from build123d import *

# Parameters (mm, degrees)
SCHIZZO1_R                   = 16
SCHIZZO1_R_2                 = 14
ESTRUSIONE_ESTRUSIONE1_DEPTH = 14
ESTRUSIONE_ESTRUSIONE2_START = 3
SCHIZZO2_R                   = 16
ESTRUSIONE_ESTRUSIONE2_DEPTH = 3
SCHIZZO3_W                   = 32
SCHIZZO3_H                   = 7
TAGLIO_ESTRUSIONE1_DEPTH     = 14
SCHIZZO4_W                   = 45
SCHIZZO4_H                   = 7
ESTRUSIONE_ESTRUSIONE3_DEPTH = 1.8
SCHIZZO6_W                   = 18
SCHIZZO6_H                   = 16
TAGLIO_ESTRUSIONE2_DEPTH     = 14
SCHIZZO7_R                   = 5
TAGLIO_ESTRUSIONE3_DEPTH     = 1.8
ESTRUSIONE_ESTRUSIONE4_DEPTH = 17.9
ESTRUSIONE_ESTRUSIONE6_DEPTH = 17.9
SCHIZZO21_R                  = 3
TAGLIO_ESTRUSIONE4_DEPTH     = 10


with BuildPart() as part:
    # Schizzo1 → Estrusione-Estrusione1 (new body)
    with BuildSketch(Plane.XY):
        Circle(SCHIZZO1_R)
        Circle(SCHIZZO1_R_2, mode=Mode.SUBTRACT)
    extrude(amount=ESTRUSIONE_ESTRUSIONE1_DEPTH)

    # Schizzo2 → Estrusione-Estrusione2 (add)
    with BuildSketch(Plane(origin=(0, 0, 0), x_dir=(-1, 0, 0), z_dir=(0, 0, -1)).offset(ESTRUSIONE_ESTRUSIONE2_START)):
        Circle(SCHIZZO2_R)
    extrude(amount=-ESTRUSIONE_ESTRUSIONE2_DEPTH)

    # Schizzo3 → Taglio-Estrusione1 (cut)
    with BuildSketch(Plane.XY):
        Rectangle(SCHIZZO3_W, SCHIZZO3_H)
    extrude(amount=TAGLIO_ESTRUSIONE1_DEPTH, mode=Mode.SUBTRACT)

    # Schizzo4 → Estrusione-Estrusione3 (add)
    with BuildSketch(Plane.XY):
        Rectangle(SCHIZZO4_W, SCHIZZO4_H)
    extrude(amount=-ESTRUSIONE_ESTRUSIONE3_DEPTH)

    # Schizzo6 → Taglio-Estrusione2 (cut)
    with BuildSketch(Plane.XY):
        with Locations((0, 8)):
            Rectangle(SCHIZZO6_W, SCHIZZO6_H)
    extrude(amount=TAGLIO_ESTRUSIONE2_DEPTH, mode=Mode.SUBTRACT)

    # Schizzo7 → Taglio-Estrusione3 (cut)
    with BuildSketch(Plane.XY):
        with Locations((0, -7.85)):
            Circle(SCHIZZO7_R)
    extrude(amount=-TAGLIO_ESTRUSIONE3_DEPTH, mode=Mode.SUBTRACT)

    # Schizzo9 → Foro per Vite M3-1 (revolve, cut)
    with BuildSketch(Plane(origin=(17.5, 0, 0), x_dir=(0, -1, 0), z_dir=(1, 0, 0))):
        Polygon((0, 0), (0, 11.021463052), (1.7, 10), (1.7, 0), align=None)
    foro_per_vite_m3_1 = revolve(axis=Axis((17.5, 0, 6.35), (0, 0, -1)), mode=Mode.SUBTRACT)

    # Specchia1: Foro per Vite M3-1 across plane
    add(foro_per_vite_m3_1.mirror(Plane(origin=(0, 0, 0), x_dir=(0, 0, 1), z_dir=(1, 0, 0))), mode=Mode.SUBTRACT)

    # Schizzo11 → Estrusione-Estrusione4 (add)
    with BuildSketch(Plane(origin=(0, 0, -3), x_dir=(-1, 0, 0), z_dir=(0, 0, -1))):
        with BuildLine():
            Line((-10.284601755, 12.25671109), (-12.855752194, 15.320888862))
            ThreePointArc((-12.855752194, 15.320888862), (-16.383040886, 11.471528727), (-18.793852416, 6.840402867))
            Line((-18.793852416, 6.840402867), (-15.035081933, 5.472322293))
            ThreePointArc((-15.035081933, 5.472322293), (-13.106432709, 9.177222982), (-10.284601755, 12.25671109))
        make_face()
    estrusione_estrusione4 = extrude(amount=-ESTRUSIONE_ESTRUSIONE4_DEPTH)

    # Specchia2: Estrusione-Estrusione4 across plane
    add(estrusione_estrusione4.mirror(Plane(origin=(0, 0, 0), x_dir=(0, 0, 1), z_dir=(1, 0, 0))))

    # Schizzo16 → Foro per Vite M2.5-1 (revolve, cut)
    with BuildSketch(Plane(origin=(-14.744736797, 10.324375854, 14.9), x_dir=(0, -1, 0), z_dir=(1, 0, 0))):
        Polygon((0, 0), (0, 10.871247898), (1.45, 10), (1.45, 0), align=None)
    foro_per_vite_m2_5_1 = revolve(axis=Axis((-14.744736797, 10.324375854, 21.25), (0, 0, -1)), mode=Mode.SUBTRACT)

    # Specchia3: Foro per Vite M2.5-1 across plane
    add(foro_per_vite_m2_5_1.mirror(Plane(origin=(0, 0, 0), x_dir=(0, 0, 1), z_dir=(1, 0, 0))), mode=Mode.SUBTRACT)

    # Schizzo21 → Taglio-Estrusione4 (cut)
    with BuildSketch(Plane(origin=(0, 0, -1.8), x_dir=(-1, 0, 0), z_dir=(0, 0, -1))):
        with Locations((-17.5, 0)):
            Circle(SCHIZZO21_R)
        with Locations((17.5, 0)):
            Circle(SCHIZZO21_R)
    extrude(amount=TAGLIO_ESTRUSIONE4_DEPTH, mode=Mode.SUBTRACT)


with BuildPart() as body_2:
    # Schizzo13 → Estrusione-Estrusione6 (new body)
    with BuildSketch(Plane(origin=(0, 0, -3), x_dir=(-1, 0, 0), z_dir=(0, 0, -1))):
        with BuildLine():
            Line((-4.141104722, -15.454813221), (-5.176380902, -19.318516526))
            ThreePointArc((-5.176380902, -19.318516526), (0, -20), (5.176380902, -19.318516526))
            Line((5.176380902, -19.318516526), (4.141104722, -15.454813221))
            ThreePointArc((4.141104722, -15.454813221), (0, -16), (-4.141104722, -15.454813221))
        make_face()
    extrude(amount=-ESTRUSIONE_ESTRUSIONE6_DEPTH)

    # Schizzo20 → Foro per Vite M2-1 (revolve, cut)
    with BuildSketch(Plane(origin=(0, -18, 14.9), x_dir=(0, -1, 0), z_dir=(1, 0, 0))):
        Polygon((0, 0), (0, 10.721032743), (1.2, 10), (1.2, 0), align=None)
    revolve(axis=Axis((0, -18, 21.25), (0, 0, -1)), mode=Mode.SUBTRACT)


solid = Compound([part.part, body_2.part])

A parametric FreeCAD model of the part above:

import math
import FreeCAD as App
import Part
import Sketcher

V = App.Vector
Q = App.Units.Quantity

doc = App.newDocument("Part")
params = doc.addObject("Spreadsheet::Sheet", "Params")
for row, (alias, value) in enumerate([
    ("sketch1_diameter", "32 mm"),
    ("sketch1_diameter2", "28 mm"),
    ("pad1_length", "14 mm"),
    ("sketch2_diameter", "32 mm"),
    ("pad2_length", "3 mm"),
    ("sketch3_width", "32 mm"),
    ("sketch3_height", "7 mm"),
    ("pocket1_length", "14 mm"),
    ("sketch4_width", "45 mm"),
    ("sketch4_height", "7 mm"),
    ("pad3_length", "1.8 mm"),
    ("sketch5_width", "18 mm"),
    ("sketch5_height", "16 mm"),
    ("pocket2_length", "14 mm"),
    ("sketch6_diameter", "10 mm"),
    ("pocket3_length", "1.8 mm"),
    ("sketch7_height", "10 mm"),
    ("sketch7_width", "1.7 mm"),
    ("groove_angle", "360 deg"),
    ("sketch8_radius", "20 mm"),
    ("sketch8_radius2", "16 mm"),
    ("pad4_length", "17.9 mm"),
    ("sketch9_height", "10 mm"),
    ("sketch9_width", "1.45 mm"),
    ("groove2_angle", "360 deg"),
    ("sketch10_diameter", "6 mm"),
    ("pocket4_length", "10 mm"),
    ("sketch11_radius", "20 mm"),
    ("sketch11_radius2", "16 mm"),
    ("pad5_length", "17.9 mm"),
    ("sketch12_height", "10 mm"),
    ("sketch12_width", "1.2 mm"),
    ("groove3_angle", "360 deg"),
], start=1):
    params.set(f"A{row}", alias)
    params.set(f"B{row}", "=" + value)
    params.setAlias(f"B{row}", alias)

body = doc.addObject("PartDesign::Body", "Body")

sketch1 = body.newObject("Sketcher::SketchObject", "Sketch")
sketch1.AttachmentSupport = (doc.getObject("XY_Plane"), [""])
sketch1.MapMode = "FlatFace"
sketch1.addGeometry([
    Part.Circle(V(0, 0, 0), V(0, 0, 1), 16),
    Part.Circle(V(0, 0, 0), V(0, 0, 1), 14),
], False)
sketch1.addConstraint([
    Sketcher.Constraint("Coincident", 0, 3, -1, 1),
    Sketcher.Constraint("Coincident", 1, 3, -1, 1),
    Sketcher.Constraint("Diameter", 0, Q("32 mm")),
    Sketcher.Constraint("Diameter", 1, Q("28 mm")),
])
sketch1.setExpression("Constraints[2]", "Params.sketch1_diameter")
sketch1.setExpression("Constraints[3]", "Params.sketch1_diameter2")
pad1 = body.newObject("PartDesign::Pad", "Pad")
pad1.Profile = sketch1
pad1.setExpression("Length", "Params.pad1_length")

sketch2 = body.newObject("Sketcher::SketchObject", "Sketch001")
sketch2.AttachmentSupport = (doc.getObject("XY_Plane"), [""])
sketch2.MapMode = "FlatFace"
sketch2.AttachmentOffset = App.Placement(V(0, 0, -3), App.Rotation())
sketch2.addGeometry(Part.Circle(V(0, 0, 0), V(0, 0, 1), 16), False)
sketch2.addConstraint([
    Sketcher.Constraint("Coincident", 0, 3, -1, 1),
    Sketcher.Constraint("Diameter", 0, Q("32 mm")),
])
sketch2.setExpression("Constraints[1]", "Params.sketch2_diameter")
pad2 = body.newObject("PartDesign::Pad", "Pad001")
pad2.Profile = sketch2
pad2.setExpression("Length", "Params.pad2_length")

sketch3 = body.newObject("Sketcher::SketchObject", "Sketch002")
sketch3.AttachmentSupport = (doc.getObject("XY_Plane"), [""])
sketch3.MapMode = "FlatFace"
sketch3.addGeometry([
    Part.LineSegment(V(-16, 4, 0), V(-16, -4, 0)),
    Part.LineSegment(V(-16, -4, 0), V(16, -4, 0)),
    Part.LineSegment(V(16, -4, 0), V(16, 4, 0)),
    Part.LineSegment(V(16, 4, 0), V(-16, 4, 0)),
], False)
sketch3.addConstraint([
    Sketcher.Constraint("Coincident", 0, 2, 1, 1),
    Sketcher.Constraint("Coincident", 1, 2, 2, 1),
    Sketcher.Constraint("Coincident", 2, 2, 3, 1),
    Sketcher.Constraint("Coincident", 3, 2, 0, 1),
    Sketcher.Constraint("Vertical", 0),
    Sketcher.Constraint("Horizontal", 1),
    Sketcher.Constraint("Vertical", 2),
    Sketcher.Constraint("Horizontal", 3),
    Sketcher.Constraint("Symmetric", 0, 2, 2, 2, -1, 1),
    Sketcher.Constraint("DistanceX", 1, 1, 1, 2, Q("32 mm")),
    Sketcher.Constraint("DistanceY", 0, 2, 0, 1, Q("7 mm")),
])
sketch3.setExpression("Constraints[9]", "Params.sketch3_width")
sketch3.setExpression("Constraints[10]", "Params.sketch3_height")
pocket1 = body.newObject("PartDesign::Pocket", "Pocket")
pocket1.Profile = sketch3
pocket1.setExpression("Length", "Params.pocket1_length")
pocket1.Reversed = True

sketch4 = body.newObject("Sketcher::SketchObject", "Sketch003")
sketch4.AttachmentSupport = (doc.getObject("XY_Plane"), [""])
sketch4.MapMode = "FlatFace"
sketch4.addGeometry([
    Part.LineSegment(V(-22, 4, 0), V(-22, -4, 0)),
    Part.LineSegment(V(-22, -4, 0), V(22, -4, 0)),
    Part.LineSegment(V(22, -4, 0), V(22, 4, 0)),
    Part.LineSegment(V(22, 4, 0), V(-22, 4, 0)),
], False)
sketch4.addConstraint([
    Sketcher.Constraint("Coincident", 0, 2, 1, 1),
    Sketcher.Constraint("Coincident", 1, 2, 2, 1),
    Sketcher.Constraint("Coincident", 2, 2, 3, 1),
    Sketcher.Constraint("Coincident", 3, 2, 0, 1),
    Sketcher.Constraint("Vertical", 0),
    Sketcher.Constraint("Horizontal", 1),
    Sketcher.Constraint("Vertical", 2),
    Sketcher.Constraint("Horizontal", 3),
    Sketcher.Constraint("Symmetric", 0, 2, 2, 2, -1, 1),
    Sketcher.Constraint("DistanceX", 1, 1, 1, 2, Q("45 mm")),
    Sketcher.Constraint("DistanceY", 0, 2, 0, 1, Q("7 mm")),
])
sketch4.setExpression("Constraints[9]", "Params.sketch4_width")
sketch4.setExpression("Constraints[10]", "Params.sketch4_height")
pad3 = body.newObject("PartDesign::Pad", "Pad002")
pad3.Profile = sketch4
pad3.setExpression("Length", "Params.pad3_length")
pad3.Reversed = True

sketch5 = body.newObject("Sketcher::SketchObject", "Sketch004")
sketch5.AttachmentSupport = (doc.getObject("XY_Plane"), [""])
sketch5.MapMode = "FlatFace"
sketch5.addGeometry([
    Part.LineSegment(V(-9, 16, 0), V(-9, 0, 0)),
    Part.LineSegment(V(-9, 0, 0), V(9, 0, 0)),
    Part.LineSegment(V(9, 0, 0), V(9, 16, 0)),
    Part.LineSegment(V(9, 16, 0), V(-9, 16, 0)),
], False)
sketch5.addConstraint([
    Sketcher.Constraint("Coincident", 0, 2, 1, 1),
    Sketcher.Constraint("Coincident", 1, 2, 2, 1),
    Sketcher.Constraint("Coincident", 2, 2, 3, 1),
    Sketcher.Constraint("Coincident", 3, 2, 0, 1),
    Sketcher.Constraint("Vertical", 0),
    Sketcher.Constraint("Horizontal", 1),
    Sketcher.Constraint("Vertical", 2),
    Sketcher.Constraint("Horizontal", 3),
    Sketcher.Constraint("Symmetric", 0, 2, 1, 2, -1, 1),
    Sketcher.Constraint("DistanceX", 1, 1, 1, 2, Q("18 mm")),
    Sketcher.Constraint("DistanceY", 0, 2, 0, 1, Q("16 mm")),
])
sketch5.setExpression("Constraints[9]", "Params.sketch5_width")
sketch5.setExpression("Constraints[10]", "Params.sketch5_height")
pocket2 = body.newObject("PartDesign::Pocket", "Pocket001")
pocket2.Profile = sketch5
pocket2.setExpression("Length", "Params.pocket2_length")
pocket2.Reversed = True

sketch6 = body.newObject("Sketcher::SketchObject", "Sketch005")
sketch6.AttachmentSupport = (doc.getObject("XY_Plane"), [""])
sketch6.MapMode = "FlatFace"
sketch6.addGeometry(Part.Circle(V(0, -8, 0), V(0, 0, 1), 5), False)
sketch6.addConstraint([
    Sketcher.Constraint("PointOnObject", 0, 3, -2),
    Sketcher.Constraint("Diameter", 0, Q("10 mm")),
    Sketcher.Constraint("DistanceY", 0, 3, -1, 1, Q("7.85 mm")),
])
sketch6.setExpression("Constraints[1]", "Params.sketch6_diameter")
pocket3 = body.newObject("PartDesign::Pocket", "Pocket002")
pocket3.Profile = sketch6
pocket3.setExpression("Length", "Params.pocket3_length")

sketch7 = body.newObject("Sketcher::SketchObject", "Sketch006")
sketch7.AttachmentSupport = (doc.getObject("YZ_Plane"), [""])
sketch7.MapMode = "FlatFace"
sketch7.AttachmentOffset = App.Placement(V(0, 0, 17.5), App.Rotation())
sketch7.addGeometry([
    Part.LineSegment(V(0, -11, 0), V(0, 0, 0)),
    Part.LineSegment(V(0, 0, 0), V(-1.7, 0, 0)),
    Part.LineSegment(V(-1.7, 0, 0), V(-1.7, -10, 0)),
    Part.LineSegment(V(-1.7, -10, 0), V(0, -11, 0)),
], False)
sketch7.addConstraint([
    Sketcher.Constraint("Coincident", 0, 2, 1, 1),
    Sketcher.Constraint("Coincident", 1, 2, 2, 1),
    Sketcher.Constraint("Coincident", 2, 2, 3, 1),
    Sketcher.Constraint("Coincident", 3, 2, 0, 1),
    Sketcher.Constraint("Vertical", 0),
    Sketcher.Constraint("Horizontal", 1),
    Sketcher.Constraint("Vertical", 2),
    Sketcher.Constraint("Coincident", 0, 2, -1, 1),
    Sketcher.Constraint("DistanceY", 2, 2, 2, 1, Q("10 mm")),
    Sketcher.Constraint("Angle", 3, Q("-31 deg")),
    Sketcher.Constraint("DistanceX", 1, 2, 1, 1, Q("1.7 mm")),
])
sketch7.setExpression("Constraints[8]", "Params.sketch7_height")
sketch7.setExpression("Constraints[10]", "Params.sketch7_width")
groove = body.newObject("PartDesign::Groove", "Groove")
groove.Profile = sketch7
groove.ReferenceAxis = (sketch7, ["V_Axis"])
groove.setExpression("Angle", "Params.groove_angle")
doc.recompute()

mirrored = body.newObject("PartDesign::Mirrored", "Mirrored")
mirrored.Originals = [groove]
mirrored.MirrorPlane = (doc.getObject("YZ_Plane"), [""])
body.Tip = mirrored

sketch8 = body.newObject("Sketcher::SketchObject", "Sketch007")
sketch8.AttachmentSupport = (doc.getObject("XY_Plane"), [""])
sketch8.MapMode = "FlatFace"
sketch8.AttachmentOffset = App.Placement(V(0, 0, -3), App.Rotation())
sketch8.addGeometry([
    Part.LineSegment(V(10.3, 12.3, 0), V(12.9, 15.3, 0)),
    Part.ArcOfCircle(Part.Circle(V(0, 0, 0), V(0, 0, 1), 20), math.radians(20), math.radians(50)),
    Part.LineSegment(V(18.8, 6.8, 0), V(15, 5.5, 0)),
    Part.ArcOfCircle(Part.Circle(V(0, 0, 0), V(0, 0, 1), 16), math.radians(20), math.radians(50)),
], False)
sketch8.addConstraint([
    Sketcher.Constraint("Coincident", 0, 2, 1, 2),
    Sketcher.Constraint("Coincident", 1, 1, 2, 1),
    Sketcher.Constraint("Coincident", 2, 2, 3, 1),
    Sketcher.Constraint("Coincident", 3, 2, 0, 1),
    Sketcher.Constraint("Coincident", 1, 3, -1, 1),
    Sketcher.Constraint("Coincident", 3, 3, -1, 1),
    Sketcher.Constraint("Radius", 1, Q("20 mm")),
    Sketcher.Constraint("Radius", 3, Q("16 mm")),
    Sketcher.Constraint("Angle", 0, Q("50 deg")),
    Sketcher.Constraint("Angle", 2, Q("-160 deg")),
    Sketcher.Constraint("DistanceX", -1, 1, 3, 2, Q("10.284602 mm")),
    Sketcher.Constraint("DistanceX", 0, 2, 1, 1, Q("5.9381 mm")),
])
sketch8.setExpression("Constraints[6]", "Params.sketch8_radius")
sketch8.setExpression("Constraints[7]", "Params.sketch8_radius2")
pad4 = body.newObject("PartDesign::Pad", "Pad003")
pad4.Profile = sketch8
pad4.setExpression("Length", "Params.pad4_length")
doc.recompute()

mirrored2 = body.newObject("PartDesign::Mirrored", "Mirrored001")
mirrored2.Originals = [pad4]
mirrored2.MirrorPlane = (doc.getObject("YZ_Plane"), [""])
body.Tip = mirrored2

sketch9 = body.newObject("Sketcher::SketchObject", "Sketch008")
sketch9.AttachmentSupport = (doc.getObject("YZ_Plane"), [""])
sketch9.MapMode = "FlatFace"
sketch9.AttachmentOffset = App.Placement(V(0, 0, -14.744737), App.Rotation())
sketch9.addGeometry([
    Part.LineSegment(V(10.3, 4, 0), V(10.3, 14.9, 0)),
    Part.LineSegment(V(10.3, 14.9, 0), V(8.9, 14.9, 0)),
    Part.LineSegment(V(8.9, 14.9, 0), V(8.9, 4.9, 0)),
    Part.LineSegment(V(8.9, 4.9, 0), V(10.3, 4, 0)),
], False)
sketch9.addGeometry(Part.LineSegment(V(10.3, 14.9, 0), V(10.3, 4, 0)), True)
sketch9.addConstraint([
    Sketcher.Constraint("Coincident", 0, 2, 1, 1),
    Sketcher.Constraint("Coincident", 1, 2, 2, 1),
    Sketcher.Constraint("Coincident", 2, 2, 3, 1),
    Sketcher.Constraint("Coincident", 3, 2, 0, 1),
    Sketcher.Constraint("Vertical", 0),
    Sketcher.Constraint("Horizontal", 1),
    Sketcher.Constraint("Vertical", 2),
    Sketcher.Constraint("Vertical", 4),
    Sketcher.Constraint("Coincident", 4, 1, 0, 2),
    Sketcher.Constraint("Equal", 0, 4),
    Sketcher.Constraint("DistanceY", 2, 2, 2, 1, Q("10 mm")),
    Sketcher.Constraint("Angle", 3, Q("-31 deg")),
    Sketcher.Constraint("DistanceX", 1, 2, 1, 1, Q("1.45 mm")),
    Sketcher.Constraint("DistanceY", -1, 1, 0, 2, Q("14.9 mm")),
    Sketcher.Constraint("DistanceX", -1, 1, 0, 2, Q("10.324376 mm")),
])
sketch9.setExpression("Constraints[10]", "Params.sketch9_height")
sketch9.setExpression("Constraints[12]", "Params.sketch9_width")
groove2 = body.newObject("PartDesign::Groove", "Groove001")
groove2.Profile = sketch9
groove2.ReferenceAxis = (sketch9, ["Axis0"])
groove2.setExpression("Angle", "Params.groove2_angle")
doc.recompute()

mirrored3 = body.newObject("PartDesign::Mirrored", "Mirrored002")
mirrored3.Originals = [groove2]
mirrored3.MirrorPlane = (doc.getObject("YZ_Plane"), [""])
body.Tip = mirrored3

sketch10 = body.newObject("Sketcher::SketchObject", "Sketch009")
sketch10.AttachmentSupport = (doc.getObject("XY_Plane"), [""])
sketch10.MapMode = "FlatFace"
sketch10.AttachmentOffset = App.Placement(V(0, 0, -1.8), App.Rotation())
sketch10.addGeometry([
    Part.Circle(V(17.5, 0, 0), V(0, 0, 1), 3),
    Part.Circle(V(-17.5, 0, 0), V(0, 0, 1), 3),
], False)
sketch10.addConstraint([
    Sketcher.Constraint("Equal", 0, 1),
    Sketcher.Constraint("Symmetric", 0, 3, 1, 3, -1, 1),
    Sketcher.Constraint("PointOnObject", 0, 3, -1),
    Sketcher.Constraint("Diameter", 0, Q("6 mm")),
    Sketcher.Constraint("DistanceX", 1, 3, 0, 3, Q("35 mm")),
])
sketch10.setExpression("Constraints[3]", "Params.sketch10_diameter")
pocket4 = body.newObject("PartDesign::Pocket", "Pocket003")
pocket4.Profile = sketch10
pocket4.setExpression("Length", "Params.pocket4_length")
body2 = doc.addObject("PartDesign::Body", "Body001")

sketch11 = body2.newObject("Sketcher::SketchObject", "Sketch010")
sketch11.AttachmentSupport = (doc.getObject("XY_Plane001"), [""])
sketch11.MapMode = "FlatFace"
sketch11.AttachmentOffset = App.Placement(V(0, 0, -3), App.Rotation())
sketch11.addGeometry([
    Part.LineSegment(V(4.1, -15.5, 0), V(5.2, -19.3, 0)),
    Part.ArcOfCircle(Part.Circle(V(0, 0, 0), V(0, 0, 1), 20), math.radians(-105), math.radians(-75)),
    Part.LineSegment(V(-5.2, -19.3, 0), V(-4.1, -15.5, 0)),
    Part.ArcOfCircle(Part.Circle(V(0, 0, 0), V(0, 0, 1), 16), math.radians(-105), math.radians(-75)),
], False)
sketch11.addConstraint([
    Sketcher.Constraint("Coincident", 0, 2, 1, 2),
    Sketcher.Constraint("Coincident", 1, 1, 2, 1),
    Sketcher.Constraint("Coincident", 2, 2, 3, 1),
    Sketcher.Constraint("Coincident", 3, 2, 0, 1),
    Sketcher.Constraint("Coincident", 1, 3, -1, 1),
    Sketcher.Constraint("Coincident", 3, 3, -1, 1),
    Sketcher.Constraint("Horizontal", 0, 2, 1, 1),
    Sketcher.Constraint("Horizontal", 2, 2, 3, 2),
    Sketcher.Constraint("Radius", 1, Q("20 mm")),
    Sketcher.Constraint("Radius", 3, Q("16 mm")),
    Sketcher.Constraint("Angle", 0, Q("-75 deg")),
    Sketcher.Constraint("DistanceX", -1, 1, 0, 2, Q("5.176381 mm")),
])
sketch11.setExpression("Constraints[8]", "Params.sketch11_radius")
sketch11.setExpression("Constraints[9]", "Params.sketch11_radius2")
pad5 = body2.newObject("PartDesign::Pad", "Pad004")
pad5.Profile = sketch11
pad5.setExpression("Length", "Params.pad5_length")

sketch12 = body2.newObject("Sketcher::SketchObject", "Sketch011")
sketch12.AttachmentSupport = (doc.getObject("YZ_Plane001"), [""])
sketch12.MapMode = "FlatFace"
sketch12.addGeometry([
    Part.LineSegment(V(-18, 4.2, 0), V(-18, 14.9, 0)),
    Part.LineSegment(V(-18, 14.9, 0), V(-19.2, 14.9, 0)),
    Part.LineSegment(V(-19.2, 14.9, 0), V(-19.2, 4.9, 0)),
    Part.LineSegment(V(-19.2, 4.9, 0), V(-18, 4.2, 0)),
], False)
sketch12.addGeometry(Part.LineSegment(V(-18, 14.9, 0), V(-18, 4.2, 0)), True)
sketch12.addConstraint([
    Sketcher.Constraint("Coincident", 0, 2, 1, 1),
    Sketcher.Constraint("Coincident", 1, 2, 2, 1),
    Sketcher.Constraint("Coincident", 2, 2, 3, 1),
    Sketcher.Constraint("Coincident", 3, 2, 0, 1),
    Sketcher.Constraint("Vertical", 0),
    Sketcher.Constraint("Horizontal", 1),
    Sketcher.Constraint("Vertical", 2),
    Sketcher.Constraint("Vertical", 4),
    Sketcher.Constraint("Coincident", 4, 1, 0, 2),
    Sketcher.Constraint("Equal", 0, 4),
    Sketcher.Constraint("DistanceY", 2, 2, 2, 1, Q("10 mm")),
    Sketcher.Constraint("Angle", 3, Q("-31 deg")),
    Sketcher.Constraint("DistanceX", 1, 2, 1, 1, Q("1.2 mm")),
    Sketcher.Constraint("DistanceX", 0, 2, -1, 1, Q("18 mm")),
    Sketcher.Constraint("DistanceY", -1, 1, 0, 2, Q("14.9 mm")),
])
sketch12.setExpression("Constraints[10]", "Params.sketch12_height")
sketch12.setExpression("Constraints[12]", "Params.sketch12_width")
groove3 = body2.newObject("PartDesign::Groove", "Groove002")
groove3.Profile = sketch12
groove3.ReferenceAxis = (sketch12, ["Axis0"])
groove3.setExpression("Angle", "Params.groove3_angle")

doc.recompute()
